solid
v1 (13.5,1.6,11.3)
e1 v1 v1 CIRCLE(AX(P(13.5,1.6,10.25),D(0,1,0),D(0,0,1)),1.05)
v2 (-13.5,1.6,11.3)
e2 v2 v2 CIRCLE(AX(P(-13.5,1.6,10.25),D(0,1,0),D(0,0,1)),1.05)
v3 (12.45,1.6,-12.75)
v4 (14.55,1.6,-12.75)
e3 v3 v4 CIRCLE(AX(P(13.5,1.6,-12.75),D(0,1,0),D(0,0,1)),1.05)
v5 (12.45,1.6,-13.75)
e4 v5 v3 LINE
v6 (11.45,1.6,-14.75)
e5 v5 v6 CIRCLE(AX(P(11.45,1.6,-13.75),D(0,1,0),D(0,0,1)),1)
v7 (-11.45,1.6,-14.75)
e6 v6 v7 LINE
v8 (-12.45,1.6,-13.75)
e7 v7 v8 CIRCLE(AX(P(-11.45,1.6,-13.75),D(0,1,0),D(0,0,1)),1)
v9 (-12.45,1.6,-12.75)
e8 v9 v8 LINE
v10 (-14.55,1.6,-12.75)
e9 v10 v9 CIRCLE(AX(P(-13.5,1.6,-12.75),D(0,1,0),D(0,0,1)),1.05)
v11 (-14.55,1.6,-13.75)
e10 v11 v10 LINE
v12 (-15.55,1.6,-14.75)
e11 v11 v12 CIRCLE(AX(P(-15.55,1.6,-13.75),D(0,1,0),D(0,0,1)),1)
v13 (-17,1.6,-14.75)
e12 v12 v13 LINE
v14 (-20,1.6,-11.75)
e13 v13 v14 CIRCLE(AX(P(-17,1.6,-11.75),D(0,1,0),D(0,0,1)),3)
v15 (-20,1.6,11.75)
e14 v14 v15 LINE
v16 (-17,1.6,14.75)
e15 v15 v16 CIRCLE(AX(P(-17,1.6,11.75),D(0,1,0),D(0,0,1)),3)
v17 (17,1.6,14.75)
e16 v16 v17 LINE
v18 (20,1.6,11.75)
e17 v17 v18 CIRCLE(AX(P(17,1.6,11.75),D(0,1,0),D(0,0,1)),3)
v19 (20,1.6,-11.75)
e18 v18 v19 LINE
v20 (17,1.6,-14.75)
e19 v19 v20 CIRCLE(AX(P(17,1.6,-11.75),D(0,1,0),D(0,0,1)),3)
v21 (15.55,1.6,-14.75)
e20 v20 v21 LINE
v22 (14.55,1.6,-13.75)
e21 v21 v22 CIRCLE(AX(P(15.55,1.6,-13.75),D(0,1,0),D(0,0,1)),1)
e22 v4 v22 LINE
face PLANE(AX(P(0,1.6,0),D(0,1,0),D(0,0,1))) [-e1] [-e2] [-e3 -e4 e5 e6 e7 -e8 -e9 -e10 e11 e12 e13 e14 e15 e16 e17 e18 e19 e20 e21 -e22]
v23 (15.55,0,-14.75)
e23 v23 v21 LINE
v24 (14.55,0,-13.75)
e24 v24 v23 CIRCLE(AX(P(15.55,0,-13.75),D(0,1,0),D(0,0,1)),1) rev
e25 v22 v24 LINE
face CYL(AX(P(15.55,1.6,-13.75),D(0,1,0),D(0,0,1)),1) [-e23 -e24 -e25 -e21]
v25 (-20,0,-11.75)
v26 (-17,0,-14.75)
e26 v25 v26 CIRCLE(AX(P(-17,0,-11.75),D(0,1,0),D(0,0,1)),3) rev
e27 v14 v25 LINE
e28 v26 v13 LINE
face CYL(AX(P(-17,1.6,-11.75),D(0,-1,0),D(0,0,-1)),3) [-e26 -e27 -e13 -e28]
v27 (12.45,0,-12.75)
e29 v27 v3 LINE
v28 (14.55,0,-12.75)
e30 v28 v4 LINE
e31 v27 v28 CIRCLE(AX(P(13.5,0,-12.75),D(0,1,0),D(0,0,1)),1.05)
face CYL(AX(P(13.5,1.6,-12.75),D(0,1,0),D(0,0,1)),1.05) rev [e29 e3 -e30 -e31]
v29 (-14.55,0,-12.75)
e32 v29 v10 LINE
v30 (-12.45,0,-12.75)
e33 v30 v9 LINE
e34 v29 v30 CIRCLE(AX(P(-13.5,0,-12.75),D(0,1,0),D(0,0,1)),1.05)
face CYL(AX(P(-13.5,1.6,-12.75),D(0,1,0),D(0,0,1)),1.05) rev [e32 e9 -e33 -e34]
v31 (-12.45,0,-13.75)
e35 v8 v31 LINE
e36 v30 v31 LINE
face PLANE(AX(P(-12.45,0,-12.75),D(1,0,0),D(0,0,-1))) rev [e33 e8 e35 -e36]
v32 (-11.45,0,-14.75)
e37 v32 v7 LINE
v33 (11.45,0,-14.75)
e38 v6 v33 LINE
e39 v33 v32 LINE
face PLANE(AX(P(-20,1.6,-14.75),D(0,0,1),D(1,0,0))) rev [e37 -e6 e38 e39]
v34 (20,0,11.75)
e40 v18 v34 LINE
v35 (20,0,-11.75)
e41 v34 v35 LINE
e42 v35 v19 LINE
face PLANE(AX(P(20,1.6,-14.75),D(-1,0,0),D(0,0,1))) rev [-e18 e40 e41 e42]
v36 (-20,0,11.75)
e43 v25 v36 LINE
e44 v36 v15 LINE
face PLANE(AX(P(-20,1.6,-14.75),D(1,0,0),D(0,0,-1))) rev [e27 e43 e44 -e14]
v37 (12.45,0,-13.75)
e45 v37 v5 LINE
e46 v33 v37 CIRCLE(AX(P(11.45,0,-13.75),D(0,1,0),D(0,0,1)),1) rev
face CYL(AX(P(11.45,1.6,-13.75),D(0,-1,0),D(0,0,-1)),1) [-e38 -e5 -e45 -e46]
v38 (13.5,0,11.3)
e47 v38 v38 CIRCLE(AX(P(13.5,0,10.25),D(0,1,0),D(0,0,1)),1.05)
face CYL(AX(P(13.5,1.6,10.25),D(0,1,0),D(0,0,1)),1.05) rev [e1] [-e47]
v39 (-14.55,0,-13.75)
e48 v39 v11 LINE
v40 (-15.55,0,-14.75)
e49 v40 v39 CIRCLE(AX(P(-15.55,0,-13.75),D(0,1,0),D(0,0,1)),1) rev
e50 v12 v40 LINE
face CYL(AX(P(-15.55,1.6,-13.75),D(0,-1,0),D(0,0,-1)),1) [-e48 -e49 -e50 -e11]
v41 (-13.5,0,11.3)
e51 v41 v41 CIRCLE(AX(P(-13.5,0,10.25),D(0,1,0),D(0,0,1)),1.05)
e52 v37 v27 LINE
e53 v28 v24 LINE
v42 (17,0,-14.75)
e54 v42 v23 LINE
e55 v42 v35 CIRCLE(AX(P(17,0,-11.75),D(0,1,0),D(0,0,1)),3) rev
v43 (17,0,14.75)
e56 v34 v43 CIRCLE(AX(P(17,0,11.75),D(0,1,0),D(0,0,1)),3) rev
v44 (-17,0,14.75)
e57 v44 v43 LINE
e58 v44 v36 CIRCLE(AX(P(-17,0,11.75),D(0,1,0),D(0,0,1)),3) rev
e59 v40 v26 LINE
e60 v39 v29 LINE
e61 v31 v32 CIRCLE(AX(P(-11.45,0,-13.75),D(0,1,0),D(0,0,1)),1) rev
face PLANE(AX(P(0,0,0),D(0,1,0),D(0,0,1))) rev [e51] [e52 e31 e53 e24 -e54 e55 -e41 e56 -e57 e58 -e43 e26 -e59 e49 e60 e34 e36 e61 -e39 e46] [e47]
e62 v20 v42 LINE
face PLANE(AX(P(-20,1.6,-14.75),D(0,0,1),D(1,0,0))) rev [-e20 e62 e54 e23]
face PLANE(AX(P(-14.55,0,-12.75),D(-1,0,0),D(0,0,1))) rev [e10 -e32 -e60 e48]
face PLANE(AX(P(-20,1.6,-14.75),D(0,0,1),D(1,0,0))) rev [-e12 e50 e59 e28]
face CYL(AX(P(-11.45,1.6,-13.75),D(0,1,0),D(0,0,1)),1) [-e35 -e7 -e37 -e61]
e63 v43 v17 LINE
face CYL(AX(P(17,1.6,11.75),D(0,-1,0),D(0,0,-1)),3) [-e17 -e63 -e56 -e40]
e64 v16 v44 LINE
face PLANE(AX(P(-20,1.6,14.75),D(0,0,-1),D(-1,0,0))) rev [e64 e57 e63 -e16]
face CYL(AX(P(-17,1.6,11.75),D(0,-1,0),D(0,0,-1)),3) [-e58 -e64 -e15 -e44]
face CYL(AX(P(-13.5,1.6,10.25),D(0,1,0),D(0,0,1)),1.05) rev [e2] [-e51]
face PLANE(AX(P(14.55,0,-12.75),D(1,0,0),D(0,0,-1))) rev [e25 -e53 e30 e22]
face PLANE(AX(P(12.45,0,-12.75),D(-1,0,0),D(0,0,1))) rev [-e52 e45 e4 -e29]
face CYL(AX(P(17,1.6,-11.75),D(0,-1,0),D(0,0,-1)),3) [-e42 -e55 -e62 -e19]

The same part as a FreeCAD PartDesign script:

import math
import FreeCAD as App
import Part
import Sketcher
from FreeCAD import Vector


def edges_at(feature, points):
    """Names of the edges that pass closest to the given points."""
    edges = feature.Shape.Edges
    near = lambda p: min(range(len(edges)), key=lambda i: edges[i].distToShape(Part.Vertex(*p))[0])
    return sorted({f"Edge{near(p) + 1}" for p in points})

doc = App.newDocument("Part")
params = doc.addObject("Spreadsheet::Sheet", "Params")
for row, (alias, value) in enumerate([
    ("sketch1_width", "40 mm"),
    ("sketch1_height", "29.5 mm"),
    ("pad1_length", "1.6 mm"),
    ("fillet_radius", "3 mm"),
    ("sketch2_diameter", "2.1 mm"),
    ("hole_diameter", "2.1 mm"),
    ("hole_depth", "5.2 mm"),
    ("sketch3_height", "5 mm"),
    ("sketch3_radius", "1.05 mm"),
    ("fillet2_radius", "1 mm"),
], start=1):
    params.set(f"A{row}", alias)
    params.set(f"B{row}", "=" + value)
    params.setAlias(f"B{row}", alias)

body = doc.addObject("PartDesign::Body", "Body")

sketch1 = body.newObject("Sketcher::SketchObject", "Sketch")
sketch1.AttachmentSupport = (doc.getObject("XZ_Plane"), [""])
sketch1.MapMode = "FlatFace"
sketch1.addGeometry([
    Part.LineSegment(Vector(-20, -14.75, 0), Vector(-20, 14.75, 0)),
    Part.LineSegment(Vector(-20, 14.75, 0), Vector(20, 14.75, 0)),
    Part.LineSegment(Vector(20, 14.75, 0), Vector(20, -14.75, 0)),
    Part.LineSegment(Vector(20, -14.75, 0), Vector(-20, -14.75, 0)),
], False)
sketch1.addConstraint([
    Sketcher.Constraint("Coincident", 0, 2, 1, 1),
    Sketcher.Constraint("Coincident", 1, 2, 2, 1),
    Sketcher.Constraint("Coincident", 2, 2, 3, 1),
    Sketcher.Constraint("Coincident", 3, 2, 0, 1),
    Sketcher.Constraint("Vertical", 0),
    Sketcher.Constraint("Horizontal", 1),
    Sketcher.Constraint("Vertical", 2),
    Sketcher.Constraint("Horizontal", 3),
    Sketcher.Constraint("Symmetric", 0, 2, 2, 2, -1, 1),
    Sketcher.Constraint("DistanceX", 1, 1, 1, 2, 40.0),
    Sketcher.Constraint("DistanceY", 0, 1, 0, 2, 29.5),
])
sketch1.setExpression("Constraints[9]", "Params.sketch1_width")
sketch1.setExpression("Constraints[10]", "Params.sketch1_height")
pad1 = body.newObject("PartDesign::Pad", "Pad")
pad1.Profile = sketch1
pad1.setExpression("Length", "Params.pad1_length")
pad1.Reversed = True
doc.recompute()

fillet = body.newObject("PartDesign::Fillet", "Fillet")
fillet.Base = (pad1, edges_at(pad1, [
    (-20, 0.8, -14.75),
    (20, 0.8, -14.75),
    (20, 0.8, 14.75),
    (-20, 0.8, 14.75),
]))
fillet.setExpression("Radius", "Params.fillet_radius")

sketch2 = body.newObject("Sketcher::SketchObject", "Sketch001")
sketch2.AttachmentSupport = (doc.getObject("XZ_Plane"), [""])
sketch2.MapMode = "FlatFace"
sketch2.AttachmentOffset = App.Placement(Vector(0, 0, -1.6), App.Rotation())
sketch2.addGeometry([
    Part.Circle(Vector(-13.5, -12.75, 0), Vector(0, 0, 1), 1.05),
    Part.Circle(Vector(13.5, -12.75, 0), Vector(0, 0, 1), 1.05),
    Part.Circle(Vector(13.5, 10.25, 0), Vector(0, 0, 1), 1.05),
    Part.Circle(Vector(-13.5, 10.25, 0), Vector(0, 0, 1), 1.05),
], False)
sketch2.addConstraint([
    Sketcher.Constraint("Equal", 0, 1),
    Sketcher.Constraint("Equal", 1, 2),
    Sketcher.Constraint("Equal", 2, 3),
    Sketcher.Constraint("Symmetric", 0, 3, 1, 3, -2),
    Sketcher.Constraint("Symmetric", 2, 3, 3, 3, -2),
    Sketcher.Constraint("Vertical", 1, 3, 2, 3),
    Sketcher.Constraint("Diameter", 0, 2.1),
    Sketcher.Constraint("DistanceX", 0, 3, 1, 3, 27.0),
    Sketcher.Constraint("DistanceY", 1, 3, 2, 3, 23.0),
    Sketcher.Constraint("DistanceY", 0, 3, -1, 1, 12.75),
])
sketch2.setExpression("Constraints[6]", "Params.sketch2_diameter")
doc.recompute()
hole = body.newObject("PartDesign::Hole", "Hole")
hole.Profile = sketch2
hole.ThreadType = "None"
hole.setExpression("Diameter", "Params.hole_diameter")
hole.DepthType = "Dimension"
hole.setExpression("Depth", "Params.hole_depth")
hole.DrillPoint = "Angled"
hole.DrillPointAngle = 118
hole.Reversed = True

sketch3 = body.newObject("Sketcher::SketchObject", "Sketch002")
sketch3.AttachmentSupport = (doc.getObject("XZ_Plane"), [""])
sketch3.MapMode = "FlatFace"
sketch3.AttachmentOffset = App.Placement(Vector(0, 0, -1.6), App.Rotation())
sketch3.addGeometry([
    Part.LineSegment(Vector(-14.55, -17.75, 0), Vector(-14.55, -12.75, 0)),
    Part.ArcOfCircle(Part.Circle(Vector(-13.5, -12.75, 0), Vector(0, 0, 1), 1.05), math.radians(0), math.radians(180)),
    Part.LineSegment(Vector(-12.45, -12.75, 0), Vector(-12.45, -17.75, 0)),
    Part.ArcOfCircle(Part.Circle(Vector(-13.5, -17.75, 0), Vector(0, 0, 1), 1.05), math.radians(180), math.radians(360)),
    Part.LineSegment(Vector(14.55, -12.75, 0), Vector(14.55, -17.75, 0)),
    Part.ArcOfCircle(Part.Circle(Vector(13.5, -17.75, 0), Vector(0, 0, 1), 1.05), math.radians(180), math.radians(360)),
    Part.LineSegment(Vector(12.45, -17.75, 0), Vector(12.45, -12.75, 0)),
    Part.ArcOfCircle(Part.Circle(Vector(13.5, -12.75, 0), Vector(0, 0, 1), 1.05), math.radians(0), math.radians(180)),
], False)
sketch3.addConstraint([
    Sketcher.Constraint("Tangent", 0, 2, 1, 2),
    Sketcher.Constraint("Tangent", 1, 1, 2, 1),
    Sketcher.Constraint("Tangent", 2, 2, 3, 2),
    Sketcher.Constraint("Tangent", 3, 1, 0, 1),
    Sketcher.Constraint("Tangent", 4, 2, 5, 2),
    Sketcher.Constraint("Tangent", 5, 1, 6, 1),
    Sketcher.Constraint("Tangent", 6, 2, 7, 2),
    Sketcher.Constraint("Tangent", 7, 1, 4, 1),
    Sketcher.Constraint("Vertical", 0),
    Sketcher.Constraint("Vertical", 2),
    Sketcher.Constraint("Vertical", 4),
    Sketcher.Constraint("Vertical", 6),
    Sketcher.Constraint("Equal", 3, 5),
    Sketcher.Constraint("Symmetric", 3, 3, 5, 3, -2),
    Sketcher.Constraint("Horizontal", 1, 3, 7, 3),
    Sketcher.Constraint("DistanceY", 0, 1, 0, 2, 5.0),
    Sketcher.Constraint("Radius", 1, 1.05),
    Sketcher.Constraint("DistanceX", 3, 3, 5, 3, 27.0),
    Sketcher.Constraint("DistanceY", 1, 3, -1, 1, 12.75),
])
sketch3.setExpression("Constraints[15]", "Params.sketch3_height")
sketch3.setExpression("Constraints[16]", "Params.sketch3_radius")
pocket1 = body.newObject("PartDesign::Pocket", "Pocket")
pocket1.Profile = sketch3
pocket1.Type = "ThroughAll"
pocket1.Midplane = True
doc.recompute()

fillet2 = body.newObject("PartDesign::Fillet", "Fillet001")
fillet2.Base = (pocket1, edges_at(pocket1, [
    (-14.55, 0.8, -14.75),
    (-12.45, 0.8, -14.75),
    (12.45, 0.8, -14.75),
    (14.55, 0.8, -14.75),
]))
fillet2.setExpression("Radius", "Params.fillet2_radius")

doc.recompute()
